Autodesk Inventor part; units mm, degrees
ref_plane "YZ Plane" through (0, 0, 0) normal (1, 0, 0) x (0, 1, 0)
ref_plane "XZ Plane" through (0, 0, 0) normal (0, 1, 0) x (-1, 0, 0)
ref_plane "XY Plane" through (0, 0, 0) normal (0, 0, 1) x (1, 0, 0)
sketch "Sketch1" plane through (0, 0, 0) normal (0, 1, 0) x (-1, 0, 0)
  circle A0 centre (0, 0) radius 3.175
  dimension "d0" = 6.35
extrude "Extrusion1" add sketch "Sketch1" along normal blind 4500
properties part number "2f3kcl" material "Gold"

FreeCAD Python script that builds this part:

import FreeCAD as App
import Part
import Sketcher
Q = App.Units.Quantity

doc = App.newDocument("Part")
body = doc.addObject("PartDesign::Body", "Body")

sketch1 = body.newObject("Sketcher::SketchObject", "Sketch")
sketch1.AttachmentSupport = (doc.getObject("XZ_Plane"), [""])
sketch1.MapMode = "FlatFace"
sketch1.addGeometry(Part.Circle(App.Vector(0, 0, 0), App.Vector(0, 0, 1), 3.2), False)
sketch1.addConstraint([
    Sketcher.Constraint("Coincident", 0, 3, -1, 1),
    Sketcher.Constraint("Diameter", 0, Q("6.35 mm")),
])
pad1 = body.newObject("PartDesign::Pad", "Pad")
pad1.Profile = sketch1
pad1.Length = 4500
pad1.Reversed = True

doc.recompute()
